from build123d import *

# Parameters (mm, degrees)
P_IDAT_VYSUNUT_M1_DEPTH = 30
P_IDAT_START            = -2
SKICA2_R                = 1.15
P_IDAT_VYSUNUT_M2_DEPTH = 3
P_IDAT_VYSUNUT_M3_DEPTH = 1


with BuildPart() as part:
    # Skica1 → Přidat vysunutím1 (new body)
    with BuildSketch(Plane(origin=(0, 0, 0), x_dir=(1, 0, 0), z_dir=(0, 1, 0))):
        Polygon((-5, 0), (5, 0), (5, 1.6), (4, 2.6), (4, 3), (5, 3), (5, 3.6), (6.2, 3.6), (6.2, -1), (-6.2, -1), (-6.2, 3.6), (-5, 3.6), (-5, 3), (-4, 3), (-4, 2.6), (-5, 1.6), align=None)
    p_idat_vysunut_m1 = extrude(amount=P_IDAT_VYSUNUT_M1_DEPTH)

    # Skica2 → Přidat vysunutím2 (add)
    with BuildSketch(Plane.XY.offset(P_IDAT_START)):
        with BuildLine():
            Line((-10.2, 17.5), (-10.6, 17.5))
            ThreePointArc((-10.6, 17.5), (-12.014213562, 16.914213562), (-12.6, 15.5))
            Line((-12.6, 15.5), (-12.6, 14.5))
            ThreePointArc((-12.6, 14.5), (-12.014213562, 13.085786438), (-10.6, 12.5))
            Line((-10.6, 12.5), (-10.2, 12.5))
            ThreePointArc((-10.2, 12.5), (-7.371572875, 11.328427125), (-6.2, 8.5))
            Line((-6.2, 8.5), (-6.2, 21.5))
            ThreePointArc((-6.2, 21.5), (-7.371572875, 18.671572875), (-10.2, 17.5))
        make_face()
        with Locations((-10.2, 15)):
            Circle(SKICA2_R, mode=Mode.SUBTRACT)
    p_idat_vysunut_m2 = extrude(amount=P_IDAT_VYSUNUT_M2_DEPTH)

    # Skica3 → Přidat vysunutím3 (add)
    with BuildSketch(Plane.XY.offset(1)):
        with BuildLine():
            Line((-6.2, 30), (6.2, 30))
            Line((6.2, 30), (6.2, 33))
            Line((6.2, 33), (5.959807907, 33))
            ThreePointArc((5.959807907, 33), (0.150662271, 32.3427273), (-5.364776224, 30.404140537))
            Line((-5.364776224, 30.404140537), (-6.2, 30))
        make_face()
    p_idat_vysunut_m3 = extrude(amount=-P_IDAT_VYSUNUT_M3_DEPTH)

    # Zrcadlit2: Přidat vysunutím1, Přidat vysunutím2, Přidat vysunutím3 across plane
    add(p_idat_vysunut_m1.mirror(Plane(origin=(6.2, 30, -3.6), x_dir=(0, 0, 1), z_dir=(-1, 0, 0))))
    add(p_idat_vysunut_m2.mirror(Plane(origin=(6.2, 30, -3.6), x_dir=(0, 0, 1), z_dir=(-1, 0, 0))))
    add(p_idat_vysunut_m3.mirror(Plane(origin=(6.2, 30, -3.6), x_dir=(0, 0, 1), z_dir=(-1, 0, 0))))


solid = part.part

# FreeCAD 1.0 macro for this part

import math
import FreeCAD as App
import Part
import Sketcher
from FreeCAD import Vector
Q = App.Units.Quantity


def add_polygon(sketch, points):
    """Adds a closed chain of lines whose ends are joined by coincident constraints."""
    first, n = sketch.GeometryCount, len(points)
    for a, b in zip(points, points[1:] + points[:1]):
        sketch.addGeometry(Part.LineSegment(App.Vector(*a, 0), App.Vector(*b, 0)), False)
    for i in range(n):
        sketch.addConstraint(Sketcher.Constraint("Coincident", first + i, 2, first + (i + 1) % n, 1))

doc = App.newDocument("Part")
body = doc.addObject("PartDesign::Body", "Body")

sketch1 = doc.addObject("Sketcher::SketchObject", "Sketch")
body.addObject(sketch1)
sketch1.AttachmentSupport = (doc.XZ_Plane, [""])
sketch1.MapMode = "FlatFace"
add_polygon(sketch1, [(5, 0), (-5, 0), (-5, -1.6), (-4, -2.6), (-4, -3), (-5, -3), (-5, -3.6), (-6.2, -3.6), (-6.2, 1), (6.2, 1), (6.2, -3.6), (5, -3.6), (5, -3), (4, -3), (4, -2.6), (5, -1.6)])
sketch1.addConstraint([
    Sketcher.Constraint("Horizontal", 0),
    Sketcher.Constraint("Vertical", 1),
    Sketcher.Constraint("Vertical", 3),
    Sketcher.Constraint("Horizontal", 4),
    Sketcher.Constraint("Vertical", 5),
    Sketcher.Constraint("Horizontal", 6),
    Sketcher.Constraint("Vertical", 7),
    Sketcher.Constraint("Horizontal", 8),
    Sketcher.Constraint("Vertical", 9),
    Sketcher.Constraint("Horizontal", 10),
    Sketcher.Constraint("Vertical", 11),
    Sketcher.Constraint("Horizontal", 12),
    Sketcher.Constraint("Vertical", 13),
    Sketcher.Constraint("Vertical", 15),
    Sketcher.Constraint("Symmetric", 0, 2, 15, 2, -1, 1),
    Sketcher.Constraint("Symmetric", 6, 2, 9, 2, -2),
    Sketcher.Constraint("Symmetric", 4, 2, 11, 2, -2),
    Sketcher.Constraint("Symmetric", 2, 2, 13, 2, -2),
    Sketcher.Constraint("Perpendicular", 2, 14),
    Sketcher.Constraint("Horizontal", 1, 2, 14, 2),
    Sketcher.Constraint("Vertical", 1, 2, 4, 2),
    Sketcher.Constraint("DistanceX", 0, 2, 0, 1, Q("10 mm")),
    Sketcher.Constraint("DistanceX", 4, 2, 4, 1, Q("1 mm")),
    Sketcher.Constraint("DistanceX", 6, 2, 6, 1, Q("1.2 mm")),
    Sketcher.Constraint("DistanceY", 1, 2, 1, 1, Q("1.6 mm")),
    Sketcher.Constraint("DistanceY", 3, 2, 3, 1, Q("0.4 mm")),
    Sketcher.Constraint("DistanceY", 5, 2, 5, 1, Q("0.6 mm")),
    Sketcher.Constraint("DistanceY", 7, 1, 7, 2, Q("4.6 mm")),
])
pad1 = doc.addObject("PartDesign::Pad", "Pad")
body.addObject(pad1)
pad1.Profile = sketch1
pad1.Length = 30
pad1.Reversed = True

sketch2 = doc.addObject("Sketcher::SketchObject", "Sketch001")
body.addObject(sketch2)
sketch2.AttachmentSupport = (doc.XY_Plane, [""])
sketch2.MapMode = "FlatFace"
sketch2.AttachmentOffset = App.Placement(Vector(0, 0, -2), App.Rotation())
sketch2.addGeometry([
    Part.LineSegment(Vector(-10.2, 17.5, 0), Vector(-10.6, 17.5, 0)),
    Part.ArcOfCircle(Part.Circle(Vector(-10.6, 15.5, 0), Vector(0, 0, 1), 2), math.radians(90), math.radians(180)),
    Part.LineSegment(Vector(-12.6, 15.5, 0), Vector(-12.6, 14.5, 0)),
    Part.ArcOfCircle(Part.Circle(Vector(-10.6, 14.5, 0), Vector(0, 0, 1), 2), math.radians(-180), math.radians(-90)),
    Part.LineSegment(Vector(-10.6, 12.5, 0), Vector(-10.2, 12.5, 0)),
    Part.ArcOfCircle(Part.Circle(Vector(-10.2, 8.5, 0), Vector(0, 0, 1), 4), math.radians(0), math.radians(90)),
    Part.LineSegment(Vector(-6.2, 8.5, 0), Vector(-6.2, 21.5, 0)),
    Part.ArcOfCircle(Part.Circle(Vector(-10.2, 21.5, 0), Vector(0, 0, 1), 4), math.radians(-90), math.radians(0)),
    Part.Circle(Vector(-10.2, 15, 0), Vector(0, 0, 1), 1.15),
], False)
sketch2.addConstraint([
    Sketcher.Constraint("Tangent", 0, 2, 1, 1),
    Sketcher.Constraint("Tangent", 1, 2, 2, 1),
    Sketcher.Constraint("Tangent", 2, 2, 3, 1),
    Sketcher.Constraint("Tangent", 3, 2, 4, 1),
    Sketcher.Constraint("Tangent", 4, 2, 5, 2),
    Sketcher.Constraint("Tangent", 5, 1, 6, 1),
    Sketcher.Constraint("Tangent", 6, 2, 7, 2),
    Sketcher.Constraint("Tangent", 7, 1, 0, 1),
    Sketcher.Constraint("Horizontal", 0),
    Sketcher.Constraint("Vertical", 2),
    Sketcher.Constraint("Horizontal", 4),
    Sketcher.Constraint("Vertical", 6),
    Sketcher.Constraint("Equal", 1, 3),
    Sketcher.Constraint("Equal", 5, 7),
    Sketcher.Constraint("Vertical", 7, 3, 8, 3),
    Sketcher.Constraint("Radius", 1, Q("2 mm")),
    Sketcher.Constraint("Radius", 5, Q("4 mm")),
    Sketcher.Constraint("Diameter", 8, Q("2.3 mm")),
    Sketcher.Constraint("DistanceY", 2, 2, 2, 1, Q("1 mm")),
    Sketcher.Constraint("DistanceX", 0, 2, 0, 1, Q("0.4 mm")),
    Sketcher.Constraint("DistanceY", -1, 1, 8, 3, Q("15 mm")),
    Sketcher.Constraint("DistanceX", 1, 3, -1, 1, Q("10.6 mm")),
    Sketcher.Constraint("DistanceY", -1, 1, 1, 3, Q("15.5 mm")),
])
pad2 = doc.addObject("PartDesign::Pad", "Pad001")
body.addObject(pad2)
pad2.Profile = sketch2
pad2.Length = 3

sketch3 = doc.addObject("Sketcher::SketchObject", "Sketch002")
body.addObject(sketch3)
sketch3.AttachmentSupport = (doc.XY_Plane, [""])
sketch3.MapMode = "FlatFace"
sketch3.AttachmentOffset = App.Placement(Vector(0, 0, 1), App.Rotation())
sketch3.addGeometry([
    Part.LineSegment(Vector(-6.2, 30, 0), Vector(6.2, 30, 0)),
    Part.LineSegment(Vector(6.2, 30, 0), Vector(6.2, 33, 0)),
    Part.LineSegment(Vector(6.2, 33, 0), Vector(5.959808, 33, 0)),
    Part.ArcOfCircle(Part.Circle(Vector(5.959808, 7, 0), Vector(0, 0, 1), 26), math.radians(90), math.radians(115.820992)),
    Part.LineSegment(Vector(-5.364776, 30.404141, 0), Vector(-6.2, 30, 0)),
], False)
sketch3.addConstraint([
    Sketcher.Constraint("Coincident", 0, 2, 1, 1),
    Sketcher.Constraint("Coincident", 1, 2, 2, 1),
    Sketcher.Constraint("Tangent", 2, 2, 3, 1),
    Sketcher.Constraint("Tangent", 3, 2, 4, 1),
    Sketcher.Constraint("Coincident", 4, 2, 0, 1),
    Sketcher.Constraint("Horizontal", 0),
    Sketcher.Constraint("Vertical", 1),
    Sketcher.Constraint("Horizontal", 2),
    Sketcher.Constraint("Radius", 3, Q("26 mm")),
    Sketcher.Constraint("DistanceY", 1, 1, 1, 2, Q("3 mm")),
    Sketcher.Constraint("DistanceX", 0, 1, 0, 2, Q("12.4 mm")),
    Sketcher.Constraint("DistanceY", -1, 1, 3, 3, Q("7 mm")),
    Sketcher.Constraint("DistanceX", -1, 1, 0, 2, Q("6.2 mm")),
    Sketcher.Constraint("DistanceX", 2, 2, 2, 1, Q("0.240192 mm")),
])
pad3 = doc.addObject("PartDesign::Pad", "Pad002")
body.addObject(pad3)
pad3.Profile = sketch3
pad3.Length = 1
pad3.Reversed = True
doc.recompute()

datumplane = doc.addObject("PartDesign::Plane", "DatumPlane")
body.addObject(datumplane)
datumplane.AttachmentSupport = (doc.YZ_Plane, [""])
datumplane.MapMode = "FlatFace"
datumplane.AttachmentOffset = App.Placement(Vector(0, 0, 6.2), App.Rotation())
mirrored = doc.addObject("PartDesign::Mirrored", "Mirrored")
body.addObject(mirrored)
mirrored.Originals = [pad1, pad2, pad3]
mirrored.MirrorPlane = (datumplane, [""])
body.Tip = mirrored

doc.recompute()
